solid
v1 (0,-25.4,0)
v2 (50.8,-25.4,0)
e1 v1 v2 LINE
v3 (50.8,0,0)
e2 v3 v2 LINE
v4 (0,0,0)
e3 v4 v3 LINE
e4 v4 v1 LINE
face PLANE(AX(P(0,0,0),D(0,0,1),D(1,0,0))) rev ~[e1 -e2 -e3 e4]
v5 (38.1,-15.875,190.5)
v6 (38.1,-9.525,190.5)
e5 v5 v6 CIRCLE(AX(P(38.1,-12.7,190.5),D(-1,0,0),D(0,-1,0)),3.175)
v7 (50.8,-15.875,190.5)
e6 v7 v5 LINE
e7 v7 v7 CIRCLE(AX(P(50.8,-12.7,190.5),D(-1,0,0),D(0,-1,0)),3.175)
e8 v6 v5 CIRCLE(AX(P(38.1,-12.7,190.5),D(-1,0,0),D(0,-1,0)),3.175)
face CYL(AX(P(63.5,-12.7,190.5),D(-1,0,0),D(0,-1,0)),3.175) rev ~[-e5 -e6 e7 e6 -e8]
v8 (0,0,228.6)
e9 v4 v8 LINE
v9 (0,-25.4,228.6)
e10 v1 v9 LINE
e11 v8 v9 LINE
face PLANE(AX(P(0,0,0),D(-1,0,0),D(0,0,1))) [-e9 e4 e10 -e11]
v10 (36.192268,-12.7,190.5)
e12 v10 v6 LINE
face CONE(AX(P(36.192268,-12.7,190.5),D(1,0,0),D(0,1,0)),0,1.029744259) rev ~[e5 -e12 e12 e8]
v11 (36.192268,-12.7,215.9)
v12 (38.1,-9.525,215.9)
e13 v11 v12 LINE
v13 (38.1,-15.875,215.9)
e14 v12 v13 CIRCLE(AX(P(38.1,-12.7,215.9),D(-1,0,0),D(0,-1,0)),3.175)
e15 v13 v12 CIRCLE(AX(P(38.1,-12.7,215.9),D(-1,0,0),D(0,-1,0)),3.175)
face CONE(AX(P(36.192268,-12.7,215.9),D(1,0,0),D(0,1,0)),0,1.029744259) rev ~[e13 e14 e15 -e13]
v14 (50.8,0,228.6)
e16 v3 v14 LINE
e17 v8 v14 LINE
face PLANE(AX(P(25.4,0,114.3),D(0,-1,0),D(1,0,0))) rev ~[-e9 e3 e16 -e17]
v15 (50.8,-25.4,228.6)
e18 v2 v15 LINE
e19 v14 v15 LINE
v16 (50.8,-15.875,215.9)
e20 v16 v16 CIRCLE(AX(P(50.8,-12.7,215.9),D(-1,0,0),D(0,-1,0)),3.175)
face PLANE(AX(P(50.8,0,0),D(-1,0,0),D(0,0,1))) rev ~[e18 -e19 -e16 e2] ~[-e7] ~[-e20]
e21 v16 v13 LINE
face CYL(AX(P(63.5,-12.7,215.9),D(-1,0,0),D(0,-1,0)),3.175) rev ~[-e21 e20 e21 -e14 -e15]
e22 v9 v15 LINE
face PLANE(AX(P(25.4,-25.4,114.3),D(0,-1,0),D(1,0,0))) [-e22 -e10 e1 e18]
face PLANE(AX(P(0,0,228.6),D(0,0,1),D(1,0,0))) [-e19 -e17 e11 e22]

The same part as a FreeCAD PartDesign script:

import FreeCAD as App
import Part
import Sketcher

V = App.Vector
Q = App.Units.Quantity


def add_polygon(sketch, points):
    """Adds a closed chain of lines whose ends are joined by coincident constraints."""
    first, n = sketch.GeometryCount, len(points)
    for a, b in zip(points, points[1:] + points[:1]):
        sketch.addGeometry(Part.LineSegment(App.Vector(*a, 0), App.Vector(*b, 0)), False)
    for i in range(n):
        sketch.addConstraint(Sketcher.Constraint("Coincident", first + i, 2, first + (i + 1) % n, 1))

doc = App.newDocument("Part")
body = doc.addObject("PartDesign::Body", "Body")

sketch1 = body.newObject("Sketcher::SketchObject", "Sketch")
sketch1.AttachmentSupport = (doc.getObject("XZ_Plane"), [""])
sketch1.MapMode = "FlatFace"
add_polygon(sketch1, [(0, 229), (0, 0), (51, 0), (51, 229)])
sketch1.addConstraint([
    Sketcher.Constraint("Vertical", 0),
    Sketcher.Constraint("Horizontal", 1),
    Sketcher.Constraint("Vertical", 2),
    Sketcher.Constraint("Horizontal", 3),
    Sketcher.Constraint("Coincident", 0, 2, -1, 1),
    Sketcher.Constraint("DistanceX", 1, 1, 1, 2, Q("2 in")),
    Sketcher.Constraint("DistanceY", 0, 2, 0, 1, Q("9 in")),
])
pad1 = body.newObject("PartDesign::Pad", "Pad")
pad1.Profile = sketch1
pad1.Length = Q("1 in")

sketch2 = body.newObject("Sketcher::SketchObject", "Sketch001")
sketch2.AttachmentSupport = (doc.getObject("YZ_Plane"), [""])
sketch2.MapMode = "FlatFace"
sketch2.AttachmentOffset = App.Placement(V(0, 0, 2 * 25.4), App.Rotation())
sketch2.addGeometry([
    Part.Circle(V(-12.7, 215.9, 0), V(0, 0, 1), 3.2),
    Part.Circle(V(-12.7, 190.5, 0), V(0, 0, 1), 3.2),
], False)
sketch2.addConstraint([
    Sketcher.Constraint("Equal", 0, 1),
    Sketcher.Constraint("Vertical", 0, 3, 1, 3),
    Sketcher.Constraint("Diameter", 0, Q("0.25 in")),
    Sketcher.Constraint("DistanceY", 1, 3, 0, 3, Q("1 in")),
    Sketcher.Constraint("DistanceX", 0, 3, -1, 1, Q("0.5 in")),
    Sketcher.Constraint("DistanceY", -1, 1, 0, 3, Q("8.5 in")),
])
doc.recompute()
hole = body.newObject("PartDesign::Hole", "Hole")
hole.Profile = sketch2
hole.ThreadType = "None"
hole.Diameter = Q("0.25 in")
hole.DepthType = "Dimension"
hole.Depth = Q("0.5 in")
hole.DrillPoint = "Angled"
hole.DrillPointAngle = 118

doc.recompute()
